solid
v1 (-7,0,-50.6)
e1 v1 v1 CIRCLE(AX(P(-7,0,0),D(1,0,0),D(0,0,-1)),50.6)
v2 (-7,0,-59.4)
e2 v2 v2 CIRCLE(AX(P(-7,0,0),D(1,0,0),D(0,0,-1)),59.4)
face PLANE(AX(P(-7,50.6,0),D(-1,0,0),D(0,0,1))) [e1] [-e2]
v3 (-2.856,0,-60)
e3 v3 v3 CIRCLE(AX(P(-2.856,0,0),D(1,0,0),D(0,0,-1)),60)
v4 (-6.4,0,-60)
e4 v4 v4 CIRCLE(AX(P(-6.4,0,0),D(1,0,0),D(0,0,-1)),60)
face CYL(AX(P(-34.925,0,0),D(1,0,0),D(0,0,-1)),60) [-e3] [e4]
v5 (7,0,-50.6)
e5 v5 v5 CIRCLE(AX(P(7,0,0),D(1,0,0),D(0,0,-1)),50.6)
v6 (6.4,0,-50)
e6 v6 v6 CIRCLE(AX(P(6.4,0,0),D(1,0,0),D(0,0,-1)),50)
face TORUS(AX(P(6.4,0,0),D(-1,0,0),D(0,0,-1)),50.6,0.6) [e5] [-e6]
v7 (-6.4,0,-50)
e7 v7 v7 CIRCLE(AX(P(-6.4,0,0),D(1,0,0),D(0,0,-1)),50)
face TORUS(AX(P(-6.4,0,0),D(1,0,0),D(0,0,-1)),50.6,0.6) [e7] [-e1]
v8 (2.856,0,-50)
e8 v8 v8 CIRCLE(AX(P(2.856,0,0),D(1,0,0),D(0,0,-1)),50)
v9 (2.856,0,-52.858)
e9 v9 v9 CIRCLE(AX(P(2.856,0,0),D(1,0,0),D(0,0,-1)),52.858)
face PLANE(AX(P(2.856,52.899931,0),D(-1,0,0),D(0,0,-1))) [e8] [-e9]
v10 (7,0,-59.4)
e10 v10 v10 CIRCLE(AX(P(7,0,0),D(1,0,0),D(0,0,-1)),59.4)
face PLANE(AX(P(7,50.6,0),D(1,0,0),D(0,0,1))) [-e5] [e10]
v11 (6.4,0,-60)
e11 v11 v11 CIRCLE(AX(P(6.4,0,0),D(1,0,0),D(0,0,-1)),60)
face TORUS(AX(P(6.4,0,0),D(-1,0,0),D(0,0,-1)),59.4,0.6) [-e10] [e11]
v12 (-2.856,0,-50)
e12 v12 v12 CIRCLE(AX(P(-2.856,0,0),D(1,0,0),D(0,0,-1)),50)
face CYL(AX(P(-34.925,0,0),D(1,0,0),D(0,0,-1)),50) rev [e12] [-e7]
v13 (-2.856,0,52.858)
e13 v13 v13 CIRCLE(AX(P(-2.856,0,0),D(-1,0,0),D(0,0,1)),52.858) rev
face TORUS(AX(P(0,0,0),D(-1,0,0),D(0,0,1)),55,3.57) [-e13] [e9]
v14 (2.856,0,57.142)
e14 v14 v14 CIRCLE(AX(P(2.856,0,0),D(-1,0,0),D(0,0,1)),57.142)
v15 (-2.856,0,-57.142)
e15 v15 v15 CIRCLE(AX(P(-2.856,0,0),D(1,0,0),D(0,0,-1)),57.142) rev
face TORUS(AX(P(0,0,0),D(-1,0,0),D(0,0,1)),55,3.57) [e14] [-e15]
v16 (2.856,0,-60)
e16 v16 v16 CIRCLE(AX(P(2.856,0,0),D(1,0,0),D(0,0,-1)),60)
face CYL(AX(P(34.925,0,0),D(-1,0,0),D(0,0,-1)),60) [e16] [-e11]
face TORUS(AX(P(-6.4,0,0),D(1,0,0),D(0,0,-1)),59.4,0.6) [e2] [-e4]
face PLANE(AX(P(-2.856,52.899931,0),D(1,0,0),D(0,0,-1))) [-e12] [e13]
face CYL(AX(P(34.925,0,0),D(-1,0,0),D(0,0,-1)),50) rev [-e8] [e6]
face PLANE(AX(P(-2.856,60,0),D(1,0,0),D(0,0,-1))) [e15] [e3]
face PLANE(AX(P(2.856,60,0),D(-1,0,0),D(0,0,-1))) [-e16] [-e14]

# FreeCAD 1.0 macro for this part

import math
import FreeCAD as App
import Part
import Sketcher
from FreeCAD import Vector

doc = App.newDocument("Part")
body = doc.addObject("PartDesign::Body", "Body")

sketch1 = body.newObject("Sketcher::SketchObject", "Sketch")
sketch1.AttachmentSupport = (doc.getObject("XY_Plane"), [""])
sketch1.MapMode = "FlatFace"
sketch1.addGeometry(Part.LineSegment(Vector(-2.9, 50, 0), Vector(-2.9, 52.9, 0)), False)
sketch1.addGeometry(Part.ArcOfCircle(Part.Circle(Vector(0, 55, 0), Vector(0, 0, 1), 3.5), math.radians(144), math.radians(216)), False)
sketch1.addGeometry(Part.LineSegment(Vector(-2.9, 57.1, 0), Vector(-2.9, 60, 0)), False)
sketch1.addGeometry(Part.LineSegment(Vector(-2.9, 60, 0), Vector(-6.4, 60, 0)), False)
sketch1.addGeometry(Part.ArcOfCircle(Part.Circle(Vector(-6.4, 59.4, 0), Vector(0, 0, 1), 0.6), math.radians(90), math.radians(180)), False)
sketch1.addGeometry(Part.LineSegment(Vector(-7, 59.4, 0), Vector(-7, 50.6, 0)), False)
sketch1.addGeometry(Part.ArcOfCircle(Part.Circle(Vector(-6.4, 50.6, 0), Vector(0, 0, 1), 0.6), math.radians(180), math.radians(270)), False)
sketch1.addGeometry(Part.LineSegment(Vector(-6.4, 50, 0), Vector(-2.9, 50, 0)), False)
sketch1.addConstraint(Sketcher.Constraint("Coincident", 0, 2, 1, 2))
sketch1.addConstraint(Sketcher.Constraint("Coincident", 1, 1, 2, 1))
sketch1.addConstraint(Sketcher.Constraint("Coincident", 2, 2, 3, 1))
sketch1.addConstraint(Sketcher.Constraint("Tangent", 3, 2, 4, 1))
sketch1.addConstraint(Sketcher.Constraint("Tangent", 4, 2, 5, 1))
sketch1.addConstraint(Sketcher.Constraint("Tangent", 5, 2, 6, 1))
sketch1.addConstraint(Sketcher.Constraint("Tangent", 6, 2, 7, 1))
sketch1.addConstraint(Sketcher.Constraint("Coincident", 7, 2, 0, 1))
sketch1.addConstraint(Sketcher.Constraint("Vertical", 0))
sketch1.addConstraint(Sketcher.Constraint("Vertical", 2))
sketch1.addConstraint(Sketcher.Constraint("Horizontal", 3))
sketch1.addConstraint(Sketcher.Constraint("Vertical", 5))
sketch1.addConstraint(Sketcher.Constraint("Horizontal", 7))
sketch1.addConstraint(Sketcher.Constraint("Equal", 4, 6))
sketch1.addConstraint(Sketcher.Constraint("PointOnObject", 1, 3, -2))
sketch1.addConstraint(Sketcher.Constraint("Vertical", 0, 2, 1, 1))
sketch1.addConstraint(Sketcher.Constraint("Equal", 0, 2))
sketch1.addConstraint(Sketcher.Constraint("Radius", 4, 0.6))
sketch1.addConstraint(Sketcher.Constraint("DistanceY", 5, 2, 5, 1, 8.8))
sketch1.addConstraint(Sketcher.Constraint("DistanceY", -1, 1, 1, 3, 55.0))
sketch1.addConstraint(Sketcher.Constraint("DistanceX", 4, 2, -1, 1, 7.0))
sketch1.addConstraint(Sketcher.Constraint("Radius", 1, 3.545))
sketch1.addConstraint(Sketcher.Constraint("DistanceX", 3, 2, 3, 1, 3.544))
revolution = body.newObject("PartDesign::Revolution", "Revolution")
revolution.Profile = sketch1
revolution.ReferenceAxis = (sketch1, ["H_Axis"])
revolution.Angle = 360

sketch2 = body.newObject("Sketcher::SketchObject", "Sketch001")
sketch2.AttachmentSupport = (doc.getObject("XY_Plane"), [""])
sketch2.MapMode = "FlatFace"
sketch2.addGeometry(Part.Circle(Vector(0, 55, 0), Vector(0, 0, 1), 3.6), False)
sketch2.addConstraint(Sketcher.Constraint("PointOnObject", 0, 3, -2))
sketch2.addConstraint(Sketcher.Constraint("Diameter", 0, 7.14))
sketch2.addConstraint(Sketcher.Constraint("DistanceY", -1, 1, 0, 3, 55.0))
revolution2 = body.newObject("PartDesign::Revolution", "Revolution001")
revolution2.Profile = sketch2
revolution2.ReferenceAxis = (sketch2, ["H_Axis"])
revolution2.Angle = 360
doc.recompute()

mirrored = body.newObject("PartDesign::Mirrored", "Mirrored")
mirrored.Originals = [revolution]
mirrored.MirrorPlane = (doc.getObject("YZ_Plane"), [""])
body.Tip = mirrored

doc.recompute()
